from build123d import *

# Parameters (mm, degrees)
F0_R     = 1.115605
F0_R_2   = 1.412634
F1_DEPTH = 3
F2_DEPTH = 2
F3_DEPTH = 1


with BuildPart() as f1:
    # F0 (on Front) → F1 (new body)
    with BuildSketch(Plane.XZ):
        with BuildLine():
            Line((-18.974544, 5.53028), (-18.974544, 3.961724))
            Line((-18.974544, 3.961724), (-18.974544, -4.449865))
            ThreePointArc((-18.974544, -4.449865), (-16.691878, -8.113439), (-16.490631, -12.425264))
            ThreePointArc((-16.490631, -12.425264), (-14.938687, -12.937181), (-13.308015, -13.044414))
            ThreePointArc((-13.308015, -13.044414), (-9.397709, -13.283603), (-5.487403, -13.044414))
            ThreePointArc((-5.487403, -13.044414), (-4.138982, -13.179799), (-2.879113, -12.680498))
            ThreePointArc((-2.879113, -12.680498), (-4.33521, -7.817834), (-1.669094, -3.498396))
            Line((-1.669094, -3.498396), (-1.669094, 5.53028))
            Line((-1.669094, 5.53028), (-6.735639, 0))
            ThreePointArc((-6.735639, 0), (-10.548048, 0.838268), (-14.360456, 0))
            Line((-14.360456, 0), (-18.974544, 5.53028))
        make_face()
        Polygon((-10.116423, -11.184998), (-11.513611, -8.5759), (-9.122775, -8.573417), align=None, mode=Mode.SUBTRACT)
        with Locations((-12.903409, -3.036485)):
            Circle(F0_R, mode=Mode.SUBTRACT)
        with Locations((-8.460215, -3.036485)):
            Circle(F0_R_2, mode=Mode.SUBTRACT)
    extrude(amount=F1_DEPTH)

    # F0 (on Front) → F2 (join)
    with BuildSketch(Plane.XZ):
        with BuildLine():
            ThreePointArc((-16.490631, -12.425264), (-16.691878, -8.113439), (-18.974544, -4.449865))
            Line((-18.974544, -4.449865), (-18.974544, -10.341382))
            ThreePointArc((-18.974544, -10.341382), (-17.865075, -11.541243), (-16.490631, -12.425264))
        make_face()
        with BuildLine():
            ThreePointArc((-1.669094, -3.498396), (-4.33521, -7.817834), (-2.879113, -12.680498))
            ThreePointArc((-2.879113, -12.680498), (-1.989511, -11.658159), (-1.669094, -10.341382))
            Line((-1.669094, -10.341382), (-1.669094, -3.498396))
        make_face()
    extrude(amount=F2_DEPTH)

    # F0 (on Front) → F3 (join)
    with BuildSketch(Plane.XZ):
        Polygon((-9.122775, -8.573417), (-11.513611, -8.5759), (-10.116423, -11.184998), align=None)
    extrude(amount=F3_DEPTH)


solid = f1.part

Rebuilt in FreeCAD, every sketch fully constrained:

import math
import FreeCAD as App
import Part
import Sketcher
from FreeCAD import Vector


def add_polygon(sketch, points):
    """Adds a closed chain of lines whose ends are joined by coincident constraints."""
    first, n = sketch.GeometryCount, len(points)
    for a, b in zip(points, points[1:] + points[:1]):
        sketch.addGeometry(Part.LineSegment(App.Vector(*a, 0), App.Vector(*b, 0)), False)
    for i in range(n):
        sketch.addConstraint(Sketcher.Constraint("Coincident", first + i, 2, first + (i + 1) % n, 1))

doc = App.newDocument("Part")
body = doc.addObject("PartDesign::Body", "Body")

# Sketch on XZ plane
sketch1 = body.newObject("Sketcher::SketchObject", "Sketch")
sketch1.AttachmentSupport = (doc.getObject("XZ_Plane"), [""])
sketch1.MapMode = "FlatFace"
sketch1.addGeometry(Part.LineSegment(Vector(-18.974544, 5.53028, 0), Vector(-18.974544, -4.449865, 0)), False)  # 0
sketch1.addGeometry(Part.ArcOfCircle(Part.Circle(Vector(-24.852092, -10.654912, 0), Vector(0, 0, 1), 8.546823), math.radians(-11.95455), math.radians(46.552622)), False)  # 1
sketch1.addGeometry(Part.ArcOfCircle(Part.Circle(Vector(-13.701687, -6.578632, 0), Vector(0, 0, 1), 6.477755), math.radians(-115.501944), math.radians(-86.515823)), False)  # 2
sketch1.addGeometry(Part.ArcOfCircle(Part.Circle(Vector(-9.397709, 18.799194, 0), Vector(0, 0, 1), 32.082797), math.radians(-97.000714), math.radians(-82.999286)), False)  # 3
sketch1.addGeometry(Part.ArcOfCircle(Part.Circle(Vector(-4.535005, -10.341386, 0), Vector(0, 0, 1), 2.865907), math.radians(-109.409647), math.radians(-54.704764)), False)  # 4
sketch1.addGeometry(Part.ArcOfCircle(Part.Circle(Vector(1.808555, -8.62746, 0), Vector(0, 0, 1), 6.196882), math.radians(124.13837), math.radians(220.847249)), False)  # 5
sketch1.addGeometry(Part.LineSegment(Vector(-1.669094, -3.498396, 0), Vector(-1.669094, 5.53028, 0)), False)  # 6
sketch1.addGeometry(Part.LineSegment(Vector(-1.669094, 5.53028, 0), Vector(-6.735639, 0, 0)), False)  # 7
sketch1.addGeometry(Part.ArcOfCircle(Part.Circle(Vector(-10.548047, -8.250205, 0), Vector(0, 0, 1), 9.088473), math.radians(65.198405), math.radians(114.801595)), False)  # 8
sketch1.addGeometry(Part.LineSegment(Vector(-14.360456, 0, 0), Vector(-18.974544, 5.53028, 0)), False)  # 9
add_polygon(sketch1, [(-9.122775, -8.573417), (-10.116423, -11.184998), (-11.513611, -8.5759)])  # lines 10-12
sketch1.addGeometry(Part.Circle(Vector(-12.903409, -3.036485, 0), Vector(0, 0, 1), 1.115605), False)  # 13
sketch1.addGeometry(Part.Circle(Vector(-8.460215, -3.036485, 0), Vector(0, 0, 1), 1.412634), False)  # 14
sketch1.addConstraint(Sketcher.Constraint("Coincident", 0, 2, 1, 2))
sketch1.addConstraint(Sketcher.Constraint("Coincident", 1, 1, 2, 1))
sketch1.addConstraint(Sketcher.Constraint("Coincident", 2, 2, 3, 1))
sketch1.addConstraint(Sketcher.Constraint("Coincident", 3, 2, 4, 1))
sketch1.addConstraint(Sketcher.Constraint("Coincident", 4, 2, 5, 2))
sketch1.addConstraint(Sketcher.Constraint("Coincident", 5, 1, 6, 1))
sketch1.addConstraint(Sketcher.Constraint("Coincident", 6, 2, 7, 1))
sketch1.addConstraint(Sketcher.Constraint("Coincident", 7, 2, 8, 1))
sketch1.addConstraint(Sketcher.Constraint("Coincident", 8, 2, 9, 1))
sketch1.addConstraint(Sketcher.Constraint("Coincident", 9, 2, 0, 1))
sketch1.addConstraint(Sketcher.Constraint("Vertical", 0))
sketch1.addConstraint(Sketcher.Constraint("Vertical", 6))
sketch1.addConstraint(Sketcher.Constraint("PointOnObject", 7, 2, -1))
sketch1.addConstraint(Sketcher.Constraint("PointOnObject", 8, 2, -1))
sketch1.addConstraint(Sketcher.Constraint("Horizontal", 13, 3, 14, 3))
sketch1.addConstraint(Sketcher.Constraint("Horizontal", 2, 2, 3, 2))
sketch1.addConstraint(Sketcher.Constraint("Horizontal", 6, 2, 9, 2))
sketch1.addConstraint(Sketcher.Constraint("Diameter", 13, 2.23121))
sketch1.addConstraint(Sketcher.Constraint("Diameter", 14, 2.825268))
sketch1.addConstraint(Sketcher.Constraint("Radius", 1, 8.546823))
sketch1.addConstraint(Sketcher.Constraint("Radius", 2, 6.477755))
sketch1.addConstraint(Sketcher.Constraint("Radius", 3, 32.082797))
sketch1.addConstraint(Sketcher.Constraint("Radius", 4, 2.865907))
sketch1.addConstraint(Sketcher.Constraint("Radius", 5, 6.196882))
sketch1.addConstraint(Sketcher.Constraint("Radius", 8, 9.088473))
sketch1.addConstraint(Sketcher.Constraint("DistanceY", 4, 2, -1, 1, 12.680498))
sketch1.addConstraint(Sketcher.Constraint("DistanceY", 11, 2, -1, 1, 8.5759))
sketch1.addConstraint(Sketcher.Constraint("DistanceY", 8, 3, 3, 3, 27.049399))
sketch1.addConstraint(Sketcher.Constraint("DistanceY", 4, 3, 13, 3, 7.304901))
sketch1.addConstraint(Sketcher.Constraint("DistanceY", 1, 1, 0, 2, 7.975399))
sketch1.addConstraint(Sketcher.Constraint("DistanceX", 3, 2, 4, 3, 0.952398))
sketch1.addConstraint(Sketcher.Constraint("DistanceX", 2, 2, 4, 2, 10.428902))
sketch1.addConstraint(Sketcher.Constraint("DistanceX", 13, 3, 11, 2, 1.389798))
sketch1.addConstraint(Sketcher.Constraint("Distance", 7, 7.500258))
sketch1.addConstraint(Sketcher.Constraint("Distance", 11, 2.95965))
sketch1.addConstraint(Sketcher.Constraint("DistanceY", 0, 2, 0, 1, 9.980145))
sketch1.addConstraint(Sketcher.Constraint("DistanceY", 6, 1, 6, 2, 9.028676))
sketch1.addConstraint(Sketcher.Constraint("DistanceY", 1, 3, -1, 1, 10.654912))
sketch1.addConstraint(Sketcher.Constraint("DistanceY", 2, 3, -1, 1, 6.578632))
sketch1.addConstraint(Sketcher.Constraint("DistanceX", 3, 3, -1, 1, 9.397709))
sketch1.addConstraint(Sketcher.Constraint("DistanceY", 5, 3, -1, 1, 8.62746))
sketch1.addConstraint(Sketcher.Constraint("DistanceX", 13, 3, -1, 1, 12.903409))
sketch1.addConstraint(Sketcher.Constraint("DistanceX", 1, 1, -1, 1, 16.490631))
sketch1.addConstraint(Sketcher.Constraint("DistanceY", -1, 1, 6, 2, 5.53028))
sketch1.addConstraint(Sketcher.Constraint("DistanceX", 2, 3, 14, 3, 5.241472))
sketch1.addConstraint(Sketcher.Constraint("DistanceX", 2, 2, 10, 2, 3.191592))
sketch1.addConstraint(Sketcher.Constraint("DistanceY", 10, 2, 12, 2, 2.611581))
sketch1.addConstraint(Sketcher.Constraint("DistanceX", 12, 2, 4, 3, 4.58777))
pad1 = body.newObject("PartDesign::Pad", "Pad")
pad1.Profile = sketch1
pad1.Length = 3

# Sketch on XZ plane
sketch2 = body.newObject("Sketcher::SketchObject", "Sketch001")
sketch2.AttachmentSupport = (doc.getObject("XZ_Plane"), [""])
sketch2.MapMode = "FlatFace"
sketch2.addGeometry(Part.ArcOfCircle(Part.Circle(Vector(-24.852092, -10.654912, 0), Vector(0, 0, 1), 8.546823), math.radians(-11.95455), math.radians(46.552622)), False)
sketch2.addGeometry(Part.LineSegment(Vector(-18.974544, -4.449865, 0), Vector(-18.974544, -10.341382, 0)), False)
sketch2.addGeometry(Part.ArcOfCircle(Part.Circle(Vector(-13.70168, -6.578625, 0), Vector(0, 0, 1), 6.477764), math.radians(-144.48805), math.radians(-115.501973)), False)
sketch2.addGeometry(Part.ArcOfCircle(Part.Circle(Vector(1.808555, -8.62746, 0), Vector(0, 0, 1), 6.196882), math.radians(124.13837), math.radians(220.847249)), False)
sketch2.addGeometry(Part.ArcOfCircle(Part.Circle(Vector(-4.535008, -10.34138, 0), Vector(0, 0, 1), 2.865914), math.radians(-54.704781), math.radians(-0.00005)), False)
sketch2.addGeometry(Part.LineSegment(Vector(-1.669094, -10.341382, 0), Vector(-1.669094, -3.498396, 0)), False)
sketch2.addConstraint(Sketcher.Constraint("Coincident", 0, 2, 1, 1))
sketch2.addConstraint(Sketcher.Constraint("Coincident", 1, 2, 2, 1))
sketch2.addConstraint(Sketcher.Constraint("Coincident", 2, 2, 0, 1))
sketch2.addConstraint(Sketcher.Constraint("Coincident", 3, 2, 4, 1))
sketch2.addConstraint(Sketcher.Constraint("Coincident", 4, 2, 5, 1))
sketch2.addConstraint(Sketcher.Constraint("Coincident", 5, 2, 3, 1))
sketch2.addConstraint(Sketcher.Constraint("Vertical", 1))
sketch2.addConstraint(Sketcher.Constraint("Vertical", 5))
sketch2.addConstraint(Sketcher.Constraint("Radius", 0, 8.546823))
sketch2.addConstraint(Sketcher.Constraint("Radius", 2, 6.477764))
sketch2.addConstraint(Sketcher.Constraint("Radius", 3, 6.196882))
sketch2.addConstraint(Sketcher.Constraint("Radius", 4, 2.865914))
sketch2.addConstraint(Sketcher.Constraint("DistanceY", 3, 2, -1, 1, 12.680498))
sketch2.addConstraint(Sketcher.Constraint("DistanceX", 0, 2, 3, 3, 20.783099))
sketch2.addConstraint(Sketcher.Constraint("DistanceY", 2, 2, 0, 2, 7.975399))
sketch2.addConstraint(Sketcher.Constraint("DistanceY", 1, 2, 1, 1, 5.891517))
sketch2.addConstraint(Sketcher.Constraint("DistanceY", 5, 1, 5, 2, 6.842986))
sketch2.addConstraint(Sketcher.Constraint("DistanceY", 0, 3, -1, 1, 10.654912))
sketch2.addConstraint(Sketcher.Constraint("DistanceX", 2, 3, -1, 1, 13.70168))
sketch2.addConstraint(Sketcher.Constraint("DistanceY", 3, 3, -1, 1, 8.62746))
sketch2.addConstraint(Sketcher.Constraint("DistanceX", 4, 3, -1, 1, 4.535008))
sketch2.addConstraint(Sketcher.Constraint("DistanceY", 4, 3, -1, 1, 10.34138))
pad2 = body.newObject("PartDesign::Pad", "Pad001")
pad2.Profile = sketch2
pad2.Length = 2

# Sketch on XZ plane
sketch3 = body.newObject("Sketcher::SketchObject", "Sketch002")
sketch3.AttachmentSupport = (doc.getObject("XZ_Plane"), [""])
sketch3.MapMode = "FlatFace"
add_polygon(sketch3, [(-9.122775, -8.573417), (-11.513611, -8.5759), (-10.116423, -11.184998)])  # lines 0-2
sketch3.addConstraint(Sketcher.Constraint("DistanceY", 0, 2, -1, 1, 8.5759))
sketch3.addConstraint(Sketcher.Constraint("Distance", 1, 2.95965))
sketch3.addConstraint(Sketcher.Constraint("DistanceX", 0, 2, -1, 1, 11.513611))
sketch3.addConstraint(Sketcher.Constraint("DistanceY", 1, 2, 2, 2, 2.611581))
sketch3.addConstraint(Sketcher.Constraint("Distance", 0, 2.390837))
sketch3.addConstraint(Sketcher.Constraint("Distance", 2, 2.794225))
pad3 = body.newObject("PartDesign::Pad", "Pad002")
pad3.Profile = sketch3
pad3.Length = 1

doc.recompute()
